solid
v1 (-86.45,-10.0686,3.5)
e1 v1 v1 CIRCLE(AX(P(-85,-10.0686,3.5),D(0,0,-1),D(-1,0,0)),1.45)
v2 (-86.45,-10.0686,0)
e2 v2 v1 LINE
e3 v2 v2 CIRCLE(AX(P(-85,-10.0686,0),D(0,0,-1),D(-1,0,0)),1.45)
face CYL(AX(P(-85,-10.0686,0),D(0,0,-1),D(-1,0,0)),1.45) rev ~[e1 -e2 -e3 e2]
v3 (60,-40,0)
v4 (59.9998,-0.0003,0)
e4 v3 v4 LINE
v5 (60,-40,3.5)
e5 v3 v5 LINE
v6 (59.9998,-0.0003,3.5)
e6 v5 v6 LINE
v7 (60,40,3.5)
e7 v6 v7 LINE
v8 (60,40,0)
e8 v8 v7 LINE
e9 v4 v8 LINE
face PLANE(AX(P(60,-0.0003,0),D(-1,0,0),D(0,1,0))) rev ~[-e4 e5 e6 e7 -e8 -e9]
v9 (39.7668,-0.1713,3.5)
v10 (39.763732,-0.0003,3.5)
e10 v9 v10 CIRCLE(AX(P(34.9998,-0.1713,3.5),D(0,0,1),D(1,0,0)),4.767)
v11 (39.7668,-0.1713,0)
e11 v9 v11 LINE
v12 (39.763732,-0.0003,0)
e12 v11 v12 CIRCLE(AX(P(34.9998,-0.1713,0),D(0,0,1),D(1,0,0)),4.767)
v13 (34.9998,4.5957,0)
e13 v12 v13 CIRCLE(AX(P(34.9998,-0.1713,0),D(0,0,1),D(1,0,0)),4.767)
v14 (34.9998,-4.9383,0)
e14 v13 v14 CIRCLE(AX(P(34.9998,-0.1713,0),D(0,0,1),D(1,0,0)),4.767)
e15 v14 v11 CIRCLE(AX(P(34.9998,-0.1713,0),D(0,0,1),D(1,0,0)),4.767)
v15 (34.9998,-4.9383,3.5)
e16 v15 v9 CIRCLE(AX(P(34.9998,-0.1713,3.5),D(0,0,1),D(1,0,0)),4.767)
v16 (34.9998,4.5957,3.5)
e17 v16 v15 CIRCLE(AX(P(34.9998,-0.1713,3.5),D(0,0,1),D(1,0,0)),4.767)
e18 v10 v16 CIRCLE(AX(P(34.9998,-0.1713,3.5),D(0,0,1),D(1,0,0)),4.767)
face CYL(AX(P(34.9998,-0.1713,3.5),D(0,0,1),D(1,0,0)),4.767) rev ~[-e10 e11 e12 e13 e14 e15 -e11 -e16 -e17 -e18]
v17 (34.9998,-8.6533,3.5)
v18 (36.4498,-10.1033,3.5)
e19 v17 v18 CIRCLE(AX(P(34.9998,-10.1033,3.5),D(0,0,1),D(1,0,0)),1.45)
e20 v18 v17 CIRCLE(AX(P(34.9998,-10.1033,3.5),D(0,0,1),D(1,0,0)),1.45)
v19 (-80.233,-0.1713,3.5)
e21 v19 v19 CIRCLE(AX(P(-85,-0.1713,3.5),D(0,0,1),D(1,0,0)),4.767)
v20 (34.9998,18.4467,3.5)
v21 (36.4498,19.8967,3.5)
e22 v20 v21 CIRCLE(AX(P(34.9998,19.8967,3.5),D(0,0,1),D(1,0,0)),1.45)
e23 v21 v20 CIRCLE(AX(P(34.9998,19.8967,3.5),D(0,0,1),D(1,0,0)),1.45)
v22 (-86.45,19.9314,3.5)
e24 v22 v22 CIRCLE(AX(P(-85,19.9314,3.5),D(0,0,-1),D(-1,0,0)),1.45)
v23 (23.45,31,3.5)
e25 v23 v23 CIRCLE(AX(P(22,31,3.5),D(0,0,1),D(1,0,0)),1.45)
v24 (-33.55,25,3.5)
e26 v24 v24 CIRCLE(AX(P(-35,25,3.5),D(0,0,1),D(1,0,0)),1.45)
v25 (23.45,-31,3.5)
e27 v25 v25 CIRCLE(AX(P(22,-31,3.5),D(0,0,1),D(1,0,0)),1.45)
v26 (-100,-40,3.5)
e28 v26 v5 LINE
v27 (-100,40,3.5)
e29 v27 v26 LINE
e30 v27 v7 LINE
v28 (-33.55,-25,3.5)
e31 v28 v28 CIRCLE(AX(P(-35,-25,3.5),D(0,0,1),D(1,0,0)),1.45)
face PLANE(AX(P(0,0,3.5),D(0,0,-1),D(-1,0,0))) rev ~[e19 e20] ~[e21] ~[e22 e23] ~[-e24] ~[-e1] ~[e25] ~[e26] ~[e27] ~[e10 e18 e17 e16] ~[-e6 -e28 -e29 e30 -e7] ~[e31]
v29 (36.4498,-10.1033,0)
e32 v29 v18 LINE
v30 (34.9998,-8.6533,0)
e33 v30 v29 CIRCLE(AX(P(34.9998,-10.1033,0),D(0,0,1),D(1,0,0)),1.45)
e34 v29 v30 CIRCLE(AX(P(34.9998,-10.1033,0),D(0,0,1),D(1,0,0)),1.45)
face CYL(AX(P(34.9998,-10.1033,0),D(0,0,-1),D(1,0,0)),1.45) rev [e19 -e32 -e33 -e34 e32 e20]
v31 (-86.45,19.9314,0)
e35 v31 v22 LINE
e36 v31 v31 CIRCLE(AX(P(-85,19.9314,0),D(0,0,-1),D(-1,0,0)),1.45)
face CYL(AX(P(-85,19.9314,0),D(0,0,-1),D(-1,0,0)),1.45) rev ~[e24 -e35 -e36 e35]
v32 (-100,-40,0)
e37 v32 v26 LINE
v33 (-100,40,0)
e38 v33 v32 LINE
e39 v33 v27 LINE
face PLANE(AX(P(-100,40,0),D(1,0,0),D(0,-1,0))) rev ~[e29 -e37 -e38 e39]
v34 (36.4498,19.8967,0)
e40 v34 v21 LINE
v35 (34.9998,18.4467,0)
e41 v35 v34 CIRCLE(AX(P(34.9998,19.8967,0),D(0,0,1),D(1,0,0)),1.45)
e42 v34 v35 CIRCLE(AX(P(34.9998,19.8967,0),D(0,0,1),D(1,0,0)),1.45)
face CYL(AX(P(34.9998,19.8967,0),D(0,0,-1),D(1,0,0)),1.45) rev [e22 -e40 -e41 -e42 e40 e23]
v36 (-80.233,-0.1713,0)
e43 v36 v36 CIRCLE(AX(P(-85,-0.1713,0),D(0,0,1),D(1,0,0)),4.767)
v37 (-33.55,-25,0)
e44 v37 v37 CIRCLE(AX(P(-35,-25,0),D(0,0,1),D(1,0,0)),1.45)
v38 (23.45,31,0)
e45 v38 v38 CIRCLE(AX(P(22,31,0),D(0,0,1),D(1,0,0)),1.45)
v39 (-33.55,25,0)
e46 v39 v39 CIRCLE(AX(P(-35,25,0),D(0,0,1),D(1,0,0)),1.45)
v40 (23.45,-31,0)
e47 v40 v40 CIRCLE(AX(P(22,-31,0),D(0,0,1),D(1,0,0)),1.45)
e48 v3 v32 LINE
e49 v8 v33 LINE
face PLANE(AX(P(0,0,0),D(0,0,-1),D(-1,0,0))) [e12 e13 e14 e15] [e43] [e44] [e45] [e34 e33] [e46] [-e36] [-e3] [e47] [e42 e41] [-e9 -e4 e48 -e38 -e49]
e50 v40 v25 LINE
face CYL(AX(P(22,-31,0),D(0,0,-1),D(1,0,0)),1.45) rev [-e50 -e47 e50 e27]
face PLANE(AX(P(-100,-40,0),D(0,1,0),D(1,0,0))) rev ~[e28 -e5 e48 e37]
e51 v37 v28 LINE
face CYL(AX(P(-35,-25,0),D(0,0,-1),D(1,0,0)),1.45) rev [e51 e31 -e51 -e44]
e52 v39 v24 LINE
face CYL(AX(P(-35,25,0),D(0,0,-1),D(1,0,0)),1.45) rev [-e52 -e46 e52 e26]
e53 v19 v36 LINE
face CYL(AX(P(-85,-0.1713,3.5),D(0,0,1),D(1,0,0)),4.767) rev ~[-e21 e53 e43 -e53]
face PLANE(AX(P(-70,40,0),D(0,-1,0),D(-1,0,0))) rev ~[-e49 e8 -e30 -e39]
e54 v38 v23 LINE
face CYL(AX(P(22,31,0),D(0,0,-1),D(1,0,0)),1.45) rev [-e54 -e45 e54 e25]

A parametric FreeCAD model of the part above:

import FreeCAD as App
import Part
import Sketcher

V = App.Vector

doc = App.newDocument("Part")
body = doc.addObject("PartDesign::Body", "Body")

# Sketch on XY plane
sketch1 = body.newObject("Sketcher::SketchObject", "Sketch")
sketch1.AttachmentSupport = (doc.getObject("XY_Plane"), [""])
sketch1.MapMode = "FlatFace"
sketch1.addGeometry([
    Part.LineSegment(V(-70, -40, 0), V(60, -40, 0)),  # 0
    Part.LineSegment(V(60, -40, 0), V(60, 0, 0)),  # 1
    Part.LineSegment(V(60, 0, 0), V(60, 40, 0)),  # 2
    Part.LineSegment(V(60, 40, 0), V(-70, 40, 0)),  # 3
    Part.LineSegment(V(-70, 40, 0), V(-70, 0, 0)),  # 4
    Part.LineSegment(V(-70, 0, 0), V(-70, -40, 0)),  # 5
    Part.Circle(V(-35, -25, 0), V(0, 0, 1), 1.4),  # 6
    Part.Circle(V(22, -31, 0), V(0, 0, 1), 1.4),  # 7
    Part.Circle(V(35, -10.1, 0), V(0, 0, 1), 1.4),  # 8
    Part.Circle(V(-35, 25, 0), V(0, 0, 1), 1.4),  # 9
    Part.Circle(V(35, 19.9, 0), V(0, 0, 1), 1.4),  # 10
    Part.Circle(V(22, 31, 0), V(0, 0, 1), 1.4),  # 11
], False)
sketch1.addConstraint([
    Sketcher.Constraint("Coincident", 0, 2, 1, 1),
    Sketcher.Constraint("Coincident", 1, 2, 2, 1),
    Sketcher.Constraint("Coincident", 2, 2, 3, 1),
    Sketcher.Constraint("Coincident", 3, 2, 4, 1),
    Sketcher.Constraint("Coincident", 4, 2, 5, 1),
    Sketcher.Constraint("Coincident", 5, 2, 0, 1),
    Sketcher.Constraint("Horizontal", 0),
    Sketcher.Constraint("Vertical", 1),
    Sketcher.Constraint("Vertical", 2),
    Sketcher.Constraint("Horizontal", 3),
    Sketcher.Constraint("Vertical", 4),
    Sketcher.Constraint("Vertical", 5),
    Sketcher.Constraint("Equal", 6, 7),
    Sketcher.Constraint("Equal", 7, 8),
    Sketcher.Constraint("Equal", 8, 9),
    Sketcher.Constraint("Equal", 9, 10),
    Sketcher.Constraint("Equal", 10, 11),
    Sketcher.Constraint("Symmetric", 6, 3, 9, 3, -1),
    Sketcher.Constraint("Symmetric", 7, 3, 11, 3, -1),
    Sketcher.Constraint("PointOnObject", 4, 2, -1),
    Sketcher.Constraint("Vertical", 8, 3, 10, 3),
    Sketcher.Constraint("Equal", 4, 5),
    Sketcher.Constraint("Diameter", 6, 2.9),
    Sketcher.Constraint("DistanceY", 6, 3, -1, 1, 25.0),
    Sketcher.Constraint("DistanceY", 0, 2, 2, 2, 80.0),
    Sketcher.Constraint("DistanceX", 0, 1, 0, 2, 130.0),
    Sketcher.Constraint("DistanceX", 6, 3, -1, 1, 35.0),
    Sketcher.Constraint("DistanceX", -1, 1, 7, 3, 22.0),
    Sketcher.Constraint("DistanceY", 7, 3, -1, 1, 31.0),
    Sketcher.Constraint("DistanceX", -1, 1, 0, 2, 60.0),
    Sketcher.Constraint("DistanceY", 8, 3, 10, 3, 30.0),
    Sketcher.Constraint("DistanceY", 8, 3, 1, 2, 10.103),
    Sketcher.Constraint("DistanceY", 8, 3, -1, 1, 10.1033),
    Sketcher.Constraint("DistanceX", 8, 3, 0, 2, 25.0002),
])
pad1 = body.newObject("PartDesign::Pad", "Pad")
pad1.Profile = sketch1
pad1.Length = 3.5

# Sketch on XY plane
sketch2 = body.newObject("Sketcher::SketchObject", "Sketch001")
sketch2.AttachmentSupport = (doc.getObject("XY_Plane"), [""])
sketch2.MapMode = "FlatFace"
sketch2.addGeometry([
    Part.LineSegment(V(-100, 40, 0), V(-70, 40, 0)),  # 0
    Part.LineSegment(V(-70, 40, 0), V(-70, -40, 0)),  # 1
    Part.LineSegment(V(-70, -40, 0), V(-100, -40, 0)),  # 2
    Part.LineSegment(V(-100, -40, 0), V(-100, 40, 0)),  # 3
    Part.Circle(V(-85, -10.1, 0), V(0, 0, 1), 1.4),  # 4
    Part.Circle(V(-85, 19.9, 0), V(0, 0, 1), 1.4),  # 5
], False)
sketch2.addConstraint([
    Sketcher.Constraint("Coincident", 0, 2, 1, 1),
    Sketcher.Constraint("Coincident", 1, 2, 2, 1),
    Sketcher.Constraint("Coincident", 2, 2, 3, 1),
    Sketcher.Constraint("Coincident", 3, 2, 0, 1),
    Sketcher.Constraint("Horizontal", 0),
    Sketcher.Constraint("Vertical", 1),
    Sketcher.Constraint("Horizontal", 2),
    Sketcher.Constraint("Vertical", 3),
    Sketcher.Constraint("Equal", 4, 5),
    Sketcher.Constraint("Vertical", 4, 3, 5, 3),
    Sketcher.Constraint("Diameter", 4, 2.9),
    Sketcher.Constraint("DistanceX", 0, 1, 0, 2, 30.0),
    Sketcher.Constraint("DistanceY", 4, 3, 5, 3, 30.0),
    Sketcher.Constraint("DistanceY", 1, 2, 1, 1, 80.0),
    Sketcher.Constraint("DistanceX", 4, 3, -1, 1, 85.0),
    Sketcher.Constraint("DistanceX", 0, 2, -1, 1, 70.0),
    Sketcher.Constraint("DistanceY", -1, 1, 0, 2, 40.0),
    Sketcher.Constraint("DistanceY", 4, 3, -1, 1, 10.0686),
])
pad2 = body.newObject("PartDesign::Pad", "Pad001")
pad2.Profile = sketch2
pad2.Length = 3.5

# Sketch on XY plane
sketch3 = body.newObject("Sketcher::SketchObject", "Sketch002")
sketch3.AttachmentSupport = (doc.getObject("XY_Plane"), [""])
sketch3.MapMode = "FlatFace"
sketch3.AttachmentOffset = App.Placement(V(0, 0, 3.5), App.Rotation())
sketch3.addGeometry([
    Part.Circle(V(35, -0.2, 0), V(0, 0, 1), 4.8),
    Part.Circle(V(-85, -0.2, 0), V(0, 0, 1), 4.8),
], False)
sketch3.addConstraint([
    Sketcher.Constraint("Equal", 0, 1),
    Sketcher.Constraint("Horizontal", 0, 3, 1, 3),
    Sketcher.Constraint("Diameter", 0, 9.534),
    Sketcher.Constraint("DistanceX", 1, 3, -1, 1, 85.0),
    Sketcher.Constraint("DistanceX", -1, 1, 0, 3, 34.9998),
    Sketcher.Constraint("DistanceY", 0, 3, -1, 1, 0.1713),
])
pocket1 = body.newObject("PartDesign::Pocket", "Pocket")
pocket1.Profile = sketch3
pocket1.Length = 3.5

doc.recompute()
